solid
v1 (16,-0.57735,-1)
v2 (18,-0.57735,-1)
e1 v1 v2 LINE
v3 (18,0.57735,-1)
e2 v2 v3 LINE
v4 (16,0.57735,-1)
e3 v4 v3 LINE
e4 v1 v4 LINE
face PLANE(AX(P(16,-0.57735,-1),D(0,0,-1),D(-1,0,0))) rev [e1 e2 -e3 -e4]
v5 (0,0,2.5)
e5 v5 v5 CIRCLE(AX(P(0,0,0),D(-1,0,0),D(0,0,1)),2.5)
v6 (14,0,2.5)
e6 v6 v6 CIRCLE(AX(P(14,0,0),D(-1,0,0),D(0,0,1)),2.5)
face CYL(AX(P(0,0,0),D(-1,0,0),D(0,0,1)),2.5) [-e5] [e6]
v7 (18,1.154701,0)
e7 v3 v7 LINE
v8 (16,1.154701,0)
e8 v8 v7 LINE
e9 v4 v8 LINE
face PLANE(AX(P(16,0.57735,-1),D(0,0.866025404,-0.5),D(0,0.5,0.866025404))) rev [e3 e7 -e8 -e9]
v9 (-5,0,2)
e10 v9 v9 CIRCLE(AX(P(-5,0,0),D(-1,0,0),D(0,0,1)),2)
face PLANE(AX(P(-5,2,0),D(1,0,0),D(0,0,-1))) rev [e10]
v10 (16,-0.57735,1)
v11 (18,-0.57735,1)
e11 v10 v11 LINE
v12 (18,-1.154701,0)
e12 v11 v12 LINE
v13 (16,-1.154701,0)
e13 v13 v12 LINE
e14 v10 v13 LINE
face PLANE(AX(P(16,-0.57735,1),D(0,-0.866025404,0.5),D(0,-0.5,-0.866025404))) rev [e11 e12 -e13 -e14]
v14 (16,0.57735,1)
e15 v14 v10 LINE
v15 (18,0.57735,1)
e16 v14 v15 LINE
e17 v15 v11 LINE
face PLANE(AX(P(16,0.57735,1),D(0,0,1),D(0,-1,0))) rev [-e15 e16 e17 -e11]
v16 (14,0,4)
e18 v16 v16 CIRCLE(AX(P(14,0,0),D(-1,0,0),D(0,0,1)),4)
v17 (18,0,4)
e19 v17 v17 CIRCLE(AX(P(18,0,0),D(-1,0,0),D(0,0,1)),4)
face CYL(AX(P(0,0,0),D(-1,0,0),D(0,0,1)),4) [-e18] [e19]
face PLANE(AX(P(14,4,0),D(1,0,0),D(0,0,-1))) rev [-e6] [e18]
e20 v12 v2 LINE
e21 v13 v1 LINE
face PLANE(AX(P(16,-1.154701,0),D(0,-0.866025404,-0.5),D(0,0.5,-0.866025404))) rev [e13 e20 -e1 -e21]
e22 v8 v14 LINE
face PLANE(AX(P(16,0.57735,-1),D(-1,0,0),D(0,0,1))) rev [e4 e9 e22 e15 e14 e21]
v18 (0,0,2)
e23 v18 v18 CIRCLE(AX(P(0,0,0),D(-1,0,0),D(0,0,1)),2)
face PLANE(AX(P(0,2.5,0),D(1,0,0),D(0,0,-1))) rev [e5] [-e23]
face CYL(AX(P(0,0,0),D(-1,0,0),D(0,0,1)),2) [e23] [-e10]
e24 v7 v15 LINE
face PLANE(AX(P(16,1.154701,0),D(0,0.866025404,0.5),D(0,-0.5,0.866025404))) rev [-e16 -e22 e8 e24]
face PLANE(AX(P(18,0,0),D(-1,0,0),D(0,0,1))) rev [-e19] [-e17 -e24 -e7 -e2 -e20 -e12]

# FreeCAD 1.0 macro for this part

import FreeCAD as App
import Part
import Sketcher

V = App.Vector
Q = App.Units.Quantity


def add_polygon(sketch, points):
    """Adds a closed chain of lines whose ends are joined by coincident constraints."""
    first, n = sketch.GeometryCount, len(points)
    for a, b in zip(points, points[1:] + points[:1]):
        sketch.addGeometry(Part.LineSegment(App.Vector(*a, 0), App.Vector(*b, 0)), False)
    for i in range(n):
        sketch.addConstraint(Sketcher.Constraint("Coincident", first + i, 2, first + (i + 1) % n, 1))

doc = App.newDocument("Part")
body = doc.addObject("PartDesign::Body", "Body")

# Sketch on XY plane
sketch1 = doc.addObject("Sketcher::SketchObject", "Sketch")
body.addObject(sketch1)
sketch1.AttachmentSupport = (doc.XY_Plane, [""])
sketch1.MapMode = "FlatFace"
add_polygon(sketch1, [(18, 0), (18, 4), (14, 4), (14, 2.5), (0, 2.5), (0, 2), (-5, 2), (-5, 0)])  # lines 0-7
sketch1.addConstraint([
    Sketcher.Constraint("Vertical", 0),
    Sketcher.Constraint("Horizontal", 1),
    Sketcher.Constraint("Vertical", 2),
    Sketcher.Constraint("Horizontal", 3),
    Sketcher.Constraint("Vertical", 4),
    Sketcher.Constraint("Horizontal", 5),
    Sketcher.Constraint("Vertical", 6),
    Sketcher.Constraint("Horizontal", 7),
    Sketcher.Constraint("PointOnObject", 3, 2, -2),
    Sketcher.Constraint("PointOnObject", 6, 2, -1),
    Sketcher.Constraint("Equal", 1, 0),
    Sketcher.Constraint("DistanceX", 1, 2, 1, 1, 4.0),
    Sketcher.Constraint("DistanceX", 3, 2, 3, 1, 14.0),
    Sketcher.Constraint("DistanceX", 5, 2, 5, 1, 5.0),
    Sketcher.Constraint("DistanceY", 6, 2, 6, 1, 2.0),
    Sketcher.Constraint("DistanceY", 2, 2, 2, 1, 1.5),
])
revolution = doc.addObject("PartDesign::Revolution", "Revolution")
body.addObject(revolution)
revolution.Profile = sketch1
revolution.ReferenceAxis = (sketch1, ["H_Axis"])
revolution.Angle = 360

# Sketch on YZ plane
sketch2 = doc.addObject("Sketcher::SketchObject", "Sketch001")
body.addObject(sketch2)
sketch2.AttachmentSupport = (doc.YZ_Plane, [""])
sketch2.MapMode = "FlatFace"
sketch2.AttachmentOffset = App.Placement(V(0, 0, 18), App.Rotation())
add_polygon(sketch2, [(1.2, 0), (0.6, 1), (-0.6, 1), (-1.2, 0), (-0.6, -1), (0.6, -1)])  # lines 0-5
sketch2.addConstraint([
    Sketcher.Constraint("Horizontal", 1),
    Sketcher.Constraint("Horizontal", 4),
    Sketcher.Constraint("Symmetric", 0, 2, 3, 2, -1, 1),
    Sketcher.Constraint("Symmetric", 2, 2, 5, 2, -1, 1),
    Sketcher.Constraint("PointOnObject", 2, 2, -1),
    Sketcher.Constraint("Parallel", 2, 5),
    Sketcher.Constraint("Vertical", 1, 2, 3, 2),
    Sketcher.Constraint("Angle", 0, Q("120 deg")),
    Sketcher.Constraint("DistanceY", -1, 1, 0, 2, 1.0),
    Sketcher.Constraint("DistanceX", 1, 2, 1, 1, 1.154701),
])
pocket1 = doc.addObject("PartDesign::Pocket", "Pocket")
body.addObject(pocket1)
pocket1.Profile = sketch2
pocket1.Length = 2

doc.recompute()
